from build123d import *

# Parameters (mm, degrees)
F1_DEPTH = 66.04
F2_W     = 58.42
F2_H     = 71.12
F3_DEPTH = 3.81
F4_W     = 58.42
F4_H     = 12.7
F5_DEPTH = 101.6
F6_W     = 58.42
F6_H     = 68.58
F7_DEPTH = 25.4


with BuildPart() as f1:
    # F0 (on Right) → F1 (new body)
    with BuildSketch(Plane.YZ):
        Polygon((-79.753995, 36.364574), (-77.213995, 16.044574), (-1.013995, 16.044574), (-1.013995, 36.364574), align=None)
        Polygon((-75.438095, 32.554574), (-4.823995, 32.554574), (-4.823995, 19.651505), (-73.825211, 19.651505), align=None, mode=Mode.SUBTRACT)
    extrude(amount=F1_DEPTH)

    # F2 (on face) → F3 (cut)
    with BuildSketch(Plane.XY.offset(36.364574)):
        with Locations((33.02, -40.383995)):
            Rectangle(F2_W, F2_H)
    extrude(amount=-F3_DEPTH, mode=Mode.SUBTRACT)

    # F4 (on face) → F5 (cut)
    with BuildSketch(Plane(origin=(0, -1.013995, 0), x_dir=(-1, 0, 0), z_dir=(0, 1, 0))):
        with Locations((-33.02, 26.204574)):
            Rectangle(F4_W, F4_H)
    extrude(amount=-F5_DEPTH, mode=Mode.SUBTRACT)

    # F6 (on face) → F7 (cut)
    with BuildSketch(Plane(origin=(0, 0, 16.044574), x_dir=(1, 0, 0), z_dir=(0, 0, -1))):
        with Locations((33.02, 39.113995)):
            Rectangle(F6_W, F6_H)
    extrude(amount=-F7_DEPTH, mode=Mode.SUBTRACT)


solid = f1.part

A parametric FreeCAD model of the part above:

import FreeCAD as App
import Part
import Sketcher

V = App.Vector
Q = App.Units.Quantity

doc = App.newDocument("Part")
body = doc.addObject("PartDesign::Body", "Body")

# Sketch on YZ plane
sketch1 = doc.addObject("Sketcher::SketchObject", "Sketch")
body.addObject(sketch1)
sketch1.AttachmentSupport = (doc.YZ_Plane, [""])
sketch1.MapMode = "FlatFace"
sketch1.addGeometry(Part.LineSegment(V(-79.753995, 36.364574, 0), V(-77.213995, 16.044574, 0)), False)
sketch1.addGeometry(Part.LineSegment(V(-77.213995, 16.044574, 0), V(-1.013995, 16.044574, 0)), False)
sketch1.addGeometry(Part.LineSegment(V(-1.013995, 16.044574, 0), V(-1.013995, 36.364574, 0)), False)
sketch1.addGeometry(Part.LineSegment(V(-1.013995, 36.364574, 0), V(-79.753995, 36.364574, 0)), False)
sketch1.addGeometry(Part.LineSegment(V(-73.825211, 19.651505, 0), V(-75.438095, 32.554574, 0)), False)
sketch1.addGeometry(Part.LineSegment(V(-75.438095, 32.554574, 0), V(-4.823995, 32.554574, 0)), False)
sketch1.addGeometry(Part.LineSegment(V(-4.823995, 32.554574, 0), V(-4.823995, 19.651505, 0)), False)
sketch1.addGeometry(Part.LineSegment(V(-4.823995, 19.651505, 0), V(-73.825211, 19.651505, 0)), False)
sketch1.addConstraint(Sketcher.Constraint("Coincident", 0, 2, 1, 1))
sketch1.addConstraint(Sketcher.Constraint("Coincident", 1, 2, 2, 1))
sketch1.addConstraint(Sketcher.Constraint("Coincident", 2, 2, 3, 1))
sketch1.addConstraint(Sketcher.Constraint("Coincident", 3, 2, 0, 1))
sketch1.addConstraint(Sketcher.Constraint("Coincident", 4, 2, 5, 1))
sketch1.addConstraint(Sketcher.Constraint("Coincident", 5, 2, 6, 1))
sketch1.addConstraint(Sketcher.Constraint("Coincident", 6, 2, 7, 1))
sketch1.addConstraint(Sketcher.Constraint("Coincident", 7, 2, 4, 1))
sketch1.addConstraint(Sketcher.Constraint("Horizontal", 1))
sketch1.addConstraint(Sketcher.Constraint("Vertical", 2))
sketch1.addConstraint(Sketcher.Constraint("Horizontal", 3))
sketch1.addConstraint(Sketcher.Constraint("Horizontal", 5))
sketch1.addConstraint(Sketcher.Constraint("Vertical", 6))
sketch1.addConstraint(Sketcher.Constraint("Horizontal", 7))
sketch1.addConstraint(Sketcher.Constraint("Parallel", 0, 4))
sketch1.addConstraint(Sketcher.Constraint("DistanceX", 1, 1, 1, 2, Q("3 in")))
sketch1.addConstraint(Sketcher.Constraint("DistanceX", 3, 2, 3, 1, Q("3.1 in")))
sketch1.addConstraint(Sketcher.Constraint("DistanceY", 2, 1, 2, 2, Q("0.8 in")))
sketch1.addConstraint(Sketcher.Constraint("DistanceY", 4, 2, 3, 2, Q("0.15 in")))
sketch1.addConstraint(Sketcher.Constraint("DistanceX", 5, 2, 2, 2, Q("0.15 in")))
sketch1.addConstraint(Sketcher.Constraint("DistanceX", 5, 1, 5, 2, Q("70.6141 mm")))
sketch1.addConstraint(Sketcher.Constraint("DistanceY", 6, 2, 6, 1, Q("12.903069 mm")))
sketch1.addConstraint(Sketcher.Constraint("DistanceX", 7, 2, -1, 1, Q("73.825211 mm")))
sketch1.addConstraint(Sketcher.Constraint("DistanceY", -1, 1, 0, 2, Q("16.044574 mm")))
pad1 = doc.addObject("PartDesign::Pad", "Pad")
body.addObject(pad1)
pad1.Profile = sketch1
pad1.Length = Q("2.6 in")

# Sketch on XY plane
sketch2 = doc.addObject("Sketcher::SketchObject", "Sketch001")
body.addObject(sketch2)
sketch2.AttachmentSupport = (doc.XY_Plane, [""])
sketch2.MapMode = "FlatFace"
sketch2.AttachmentOffset = App.Placement(V(0, 0, 36.364574), App.Rotation())
sketch2.addGeometry(Part.LineSegment(V(3.81, -4.823995, 0), V(3.81, -75.943995, 0)), False)
sketch2.addGeometry(Part.LineSegment(V(3.81, -75.943995, 0), V(62.23, -75.943995, 0)), False)
sketch2.addGeometry(Part.LineSegment(V(62.23, -75.943995, 0), V(62.23, -4.823995, 0)), False)
sketch2.addGeometry(Part.LineSegment(V(62.23, -4.823995, 0), V(3.81, -4.823995, 0)), False)
sketch2.addConstraint(Sketcher.Constraint("Coincident", 0, 2, 1, 1))
sketch2.addConstraint(Sketcher.Constraint("Coincident", 1, 2, 2, 1))
sketch2.addConstraint(Sketcher.Constraint("Coincident", 2, 2, 3, 1))
sketch2.addConstraint(Sketcher.Constraint("Coincident", 3, 2, 0, 1))
sketch2.addConstraint(Sketcher.Constraint("Vertical", 0))
sketch2.addConstraint(Sketcher.Constraint("Horizontal", 1))
sketch2.addConstraint(Sketcher.Constraint("Vertical", 2))
sketch2.addConstraint(Sketcher.Constraint("Horizontal", 3))
sketch2.addConstraint(Sketcher.Constraint("DistanceX", 1, 1, 1, 2, Q("2.3 in")))
sketch2.addConstraint(Sketcher.Constraint("DistanceY", 0, 2, 0, 1, Q("2.8 in")))
sketch2.addConstraint(Sketcher.Constraint("DistanceX", -1, 1, 0, 2, Q("0.15 in")))
sketch2.addConstraint(Sketcher.Constraint("DistanceY", 0, 2, -1, 1, Q("75.943995 mm")))
pocket1 = doc.addObject("PartDesign::Pocket", "Pocket")
body.addObject(pocket1)
pocket1.Profile = sketch2
pocket1.Length = Q("0.15 in")

# Sketch on XZ plane
sketch3 = doc.addObject("Sketcher::SketchObject", "Sketch002")
body.addObject(sketch3)
sketch3.AttachmentSupport = (doc.XZ_Plane, [""])
sketch3.MapMode = "FlatFace"
sketch3.AttachmentOffset = App.Placement(V(0, 0, 1.013995), App.Rotation())
sketch3.addGeometry(Part.LineSegment(V(62.23, 32.554574, 0), V(62.23, 19.854574, 0)), False)
sketch3.addGeometry(Part.LineSegment(V(62.23, 19.854574, 0), V(3.81, 19.854574, 0)), False)
sketch3.addGeometry(Part.LineSegment(V(3.81, 19.854574, 0), V(3.81, 32.554574, 0)), False)
sketch3.addGeometry(Part.LineSegment(V(3.81, 32.554574, 0), V(62.23, 32.554574, 0)), False)
sketch3.addConstraint(Sketcher.Constraint("Coincident", 0, 2, 1, 1))
sketch3.addConstraint(Sketcher.Constraint("Coincident", 1, 2, 2, 1))
sketch3.addConstraint(Sketcher.Constraint("Coincident", 2, 2, 3, 1))
sketch3.addConstraint(Sketcher.Constraint("Coincident", 3, 2, 0, 1))
sketch3.addConstraint(Sketcher.Constraint("Vertical", 0))
sketch3.addConstraint(Sketcher.Constraint("Horizontal", 1))
sketch3.addConstraint(Sketcher.Constraint("Vertical", 2))
sketch3.addConstraint(Sketcher.Constraint("Horizontal", 3))
sketch3.addConstraint(Sketcher.Constraint("DistanceX", 1, 2, 1, 1, Q("2.3 in")))
sketch3.addConstraint(Sketcher.Constraint("DistanceY", 0, 2, 0, 1, Q("0.5 in")))
sketch3.addConstraint(Sketcher.Constraint("DistanceX", -1, 1, 0, 2, Q("2.45 in")))
sketch3.addConstraint(Sketcher.Constraint("DistanceY", -1, 1, 0, 2, Q("19.854574 mm")))
pocket2 = doc.addObject("PartDesign::Pocket", "Pocket001")
body.addObject(pocket2)
pocket2.Profile = sketch3
pocket2.Length = Q("4 in")
pocket2.Reversed = True

# Sketch on XY plane
sketch4 = doc.addObject("Sketcher::SketchObject", "Sketch003")
body.addObject(sketch4)
sketch4.AttachmentSupport = (doc.XY_Plane, [""])
sketch4.MapMode = "FlatFace"
sketch4.AttachmentOffset = App.Placement(V(0, 0, 16.044574), App.Rotation())
sketch4.addGeometry(Part.LineSegment(V(3.81, -73.403995, 0), V(3.81, -4.823995, 0)), False)
sketch4.addGeometry(Part.LineSegment(V(3.81, -4.823995, 0), V(62.23, -4.823995, 0)), False)
sketch4.addGeometry(Part.LineSegment(V(62.23, -4.823995, 0), V(62.23, -73.403995, 0)), False)
sketch4.addGeometry(Part.LineSegment(V(62.23, -73.403995, 0), V(3.81, -73.403995, 0)), False)
sketch4.addConstraint(Sketcher.Constraint("Coincident", 0, 2, 1, 1))
sketch4.addConstraint(Sketcher.Constraint("Coincident", 1, 2, 2, 1))
sketch4.addConstraint(Sketcher.Constraint("Coincident", 2, 2, 3, 1))
sketch4.addConstraint(Sketcher.Constraint("Coincident", 3, 2, 0, 1))
sketch4.addConstraint(Sketcher.Constraint("Vertical", 0))
sketch4.addConstraint(Sketcher.Constraint("Horizontal", 1))
sketch4.addConstraint(Sketcher.Constraint("Vertical", 2))
sketch4.addConstraint(Sketcher.Constraint("Horizontal", 3))
sketch4.addConstraint(Sketcher.Constraint("DistanceX", 1, 1, 1, 2, Q("2.3 in")))
sketch4.addConstraint(Sketcher.Constraint("DistanceY", 0, 1, 0, 2, Q("2.7 in")))
sketch4.addConstraint(Sketcher.Constraint("DistanceX", -1, 1, 0, 2, Q("0.15 in")))
sketch4.addConstraint(Sketcher.Constraint("DistanceY", 0, 2, -1, 1, Q("4.823995 mm")))
pocket3 = doc.addObject("PartDesign::Pocket", "Pocket002")
body.addObject(pocket3)
pocket3.Profile = sketch4
pocket3.Length = Q("1 in")
pocket3.Reversed = True

doc.recompute()
